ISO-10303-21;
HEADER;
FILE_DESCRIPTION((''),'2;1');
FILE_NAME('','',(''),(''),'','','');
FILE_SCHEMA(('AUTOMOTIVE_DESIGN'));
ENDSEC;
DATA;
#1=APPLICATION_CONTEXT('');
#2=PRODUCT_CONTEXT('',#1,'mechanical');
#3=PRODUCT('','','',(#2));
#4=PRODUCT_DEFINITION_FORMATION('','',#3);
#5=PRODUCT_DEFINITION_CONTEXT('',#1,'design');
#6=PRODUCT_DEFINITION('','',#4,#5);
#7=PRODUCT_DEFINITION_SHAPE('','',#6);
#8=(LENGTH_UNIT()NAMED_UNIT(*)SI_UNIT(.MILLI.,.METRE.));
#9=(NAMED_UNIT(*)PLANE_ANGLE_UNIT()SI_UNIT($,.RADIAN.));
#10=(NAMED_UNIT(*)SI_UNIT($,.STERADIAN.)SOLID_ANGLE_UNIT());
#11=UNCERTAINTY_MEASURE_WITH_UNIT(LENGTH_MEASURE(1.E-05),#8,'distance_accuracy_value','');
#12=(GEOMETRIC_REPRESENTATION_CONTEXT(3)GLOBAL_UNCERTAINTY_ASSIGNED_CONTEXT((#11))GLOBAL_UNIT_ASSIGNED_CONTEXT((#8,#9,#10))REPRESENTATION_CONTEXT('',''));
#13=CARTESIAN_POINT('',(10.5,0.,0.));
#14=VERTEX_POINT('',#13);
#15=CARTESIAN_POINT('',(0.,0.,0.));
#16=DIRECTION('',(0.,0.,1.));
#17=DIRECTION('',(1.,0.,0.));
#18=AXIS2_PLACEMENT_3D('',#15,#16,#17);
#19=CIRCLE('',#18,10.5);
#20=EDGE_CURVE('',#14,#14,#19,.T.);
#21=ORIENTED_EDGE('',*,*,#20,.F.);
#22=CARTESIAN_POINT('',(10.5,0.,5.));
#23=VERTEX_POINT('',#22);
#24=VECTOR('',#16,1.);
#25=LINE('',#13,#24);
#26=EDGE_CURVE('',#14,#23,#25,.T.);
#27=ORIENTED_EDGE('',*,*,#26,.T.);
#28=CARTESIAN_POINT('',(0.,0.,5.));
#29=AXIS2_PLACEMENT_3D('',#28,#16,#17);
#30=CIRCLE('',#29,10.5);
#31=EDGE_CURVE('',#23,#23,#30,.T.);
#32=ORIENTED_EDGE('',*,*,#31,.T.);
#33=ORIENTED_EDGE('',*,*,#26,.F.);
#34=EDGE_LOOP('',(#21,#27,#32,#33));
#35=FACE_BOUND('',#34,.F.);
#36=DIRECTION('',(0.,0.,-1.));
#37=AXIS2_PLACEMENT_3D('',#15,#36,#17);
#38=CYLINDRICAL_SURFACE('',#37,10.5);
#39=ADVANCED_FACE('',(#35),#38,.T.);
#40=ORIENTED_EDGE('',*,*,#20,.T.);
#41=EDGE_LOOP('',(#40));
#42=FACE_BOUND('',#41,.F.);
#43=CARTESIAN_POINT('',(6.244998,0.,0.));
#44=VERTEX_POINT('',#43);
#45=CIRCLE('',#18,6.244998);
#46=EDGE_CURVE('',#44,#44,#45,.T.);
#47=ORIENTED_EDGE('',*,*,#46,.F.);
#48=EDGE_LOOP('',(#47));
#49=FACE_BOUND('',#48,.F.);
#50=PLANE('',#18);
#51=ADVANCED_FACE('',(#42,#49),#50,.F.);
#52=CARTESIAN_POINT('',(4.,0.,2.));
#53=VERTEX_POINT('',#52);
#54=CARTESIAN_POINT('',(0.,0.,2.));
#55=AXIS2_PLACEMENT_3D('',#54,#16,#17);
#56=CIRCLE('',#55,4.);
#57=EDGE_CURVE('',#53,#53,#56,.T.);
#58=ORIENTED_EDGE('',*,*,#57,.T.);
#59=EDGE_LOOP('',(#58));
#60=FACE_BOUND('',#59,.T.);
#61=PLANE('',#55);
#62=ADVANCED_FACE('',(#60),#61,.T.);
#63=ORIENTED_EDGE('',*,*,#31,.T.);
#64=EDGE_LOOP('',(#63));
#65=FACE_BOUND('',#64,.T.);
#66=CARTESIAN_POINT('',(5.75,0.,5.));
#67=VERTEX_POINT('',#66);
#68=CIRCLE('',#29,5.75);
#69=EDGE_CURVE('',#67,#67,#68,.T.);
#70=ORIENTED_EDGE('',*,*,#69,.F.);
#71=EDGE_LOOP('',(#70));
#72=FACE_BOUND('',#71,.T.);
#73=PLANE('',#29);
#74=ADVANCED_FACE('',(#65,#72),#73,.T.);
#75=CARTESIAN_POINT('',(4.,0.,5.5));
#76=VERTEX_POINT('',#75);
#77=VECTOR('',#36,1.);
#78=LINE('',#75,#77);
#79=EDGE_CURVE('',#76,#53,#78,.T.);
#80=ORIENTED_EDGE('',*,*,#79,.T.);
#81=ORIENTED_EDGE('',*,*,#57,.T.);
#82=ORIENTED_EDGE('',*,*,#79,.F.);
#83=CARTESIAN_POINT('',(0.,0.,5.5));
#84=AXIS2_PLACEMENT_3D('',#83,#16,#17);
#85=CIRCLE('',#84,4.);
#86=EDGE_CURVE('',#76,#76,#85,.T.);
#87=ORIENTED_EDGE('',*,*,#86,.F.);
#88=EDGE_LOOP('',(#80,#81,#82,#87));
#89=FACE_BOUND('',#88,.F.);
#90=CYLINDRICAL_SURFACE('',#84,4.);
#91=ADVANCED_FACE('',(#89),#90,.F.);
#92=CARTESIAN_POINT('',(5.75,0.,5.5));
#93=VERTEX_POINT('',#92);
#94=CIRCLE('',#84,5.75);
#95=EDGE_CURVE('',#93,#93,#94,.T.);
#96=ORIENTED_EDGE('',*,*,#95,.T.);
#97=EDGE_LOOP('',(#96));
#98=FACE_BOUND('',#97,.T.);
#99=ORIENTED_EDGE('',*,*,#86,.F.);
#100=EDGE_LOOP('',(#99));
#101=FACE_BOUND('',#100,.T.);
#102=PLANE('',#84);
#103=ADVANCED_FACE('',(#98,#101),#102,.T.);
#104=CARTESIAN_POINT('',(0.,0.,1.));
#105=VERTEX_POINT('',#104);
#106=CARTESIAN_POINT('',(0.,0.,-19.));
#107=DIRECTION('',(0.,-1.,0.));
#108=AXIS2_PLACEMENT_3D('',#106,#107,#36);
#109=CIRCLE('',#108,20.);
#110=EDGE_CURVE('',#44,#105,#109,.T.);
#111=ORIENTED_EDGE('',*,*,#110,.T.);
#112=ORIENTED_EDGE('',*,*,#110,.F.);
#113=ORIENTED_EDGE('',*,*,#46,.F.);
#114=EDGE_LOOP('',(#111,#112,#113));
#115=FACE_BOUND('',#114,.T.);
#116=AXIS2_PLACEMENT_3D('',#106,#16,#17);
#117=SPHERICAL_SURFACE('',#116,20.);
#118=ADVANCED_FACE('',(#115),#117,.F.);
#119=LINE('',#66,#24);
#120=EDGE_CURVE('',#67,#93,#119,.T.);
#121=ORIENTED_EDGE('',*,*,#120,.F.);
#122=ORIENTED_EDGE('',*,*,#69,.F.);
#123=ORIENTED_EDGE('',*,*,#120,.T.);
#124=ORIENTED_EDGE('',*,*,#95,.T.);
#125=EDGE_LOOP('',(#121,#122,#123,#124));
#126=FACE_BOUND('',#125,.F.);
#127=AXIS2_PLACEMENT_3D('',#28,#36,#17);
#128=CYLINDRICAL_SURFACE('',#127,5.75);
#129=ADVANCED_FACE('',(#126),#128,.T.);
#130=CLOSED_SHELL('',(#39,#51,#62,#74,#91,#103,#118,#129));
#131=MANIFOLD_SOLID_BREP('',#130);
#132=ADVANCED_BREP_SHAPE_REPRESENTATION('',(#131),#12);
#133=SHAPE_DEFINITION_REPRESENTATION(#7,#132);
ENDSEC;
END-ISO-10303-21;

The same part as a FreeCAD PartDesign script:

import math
import FreeCAD as App
import Part
import Sketcher

V = App.Vector
Q = App.Units.Quantity

doc = App.newDocument("Part")
body = doc.addObject("PartDesign::Body", "Body")

sketch1 = doc.addObject("Sketcher::SketchObject", "Sketch")
body.addObject(sketch1)
sketch1.AttachmentSupport = (doc.XY_Plane, [""])
sketch1.MapMode = "FlatFace"
sketch1.addGeometry(Part.Circle(V(0, 0, 0), V(0, 0, 1), 10.5), False)
sketch1.addConstraint(Sketcher.Constraint("Coincident", 0, 3, -1, 1))
sketch1.addConstraint(Sketcher.Constraint("Diameter", 0, Q("21 mm")))
pad1 = doc.addObject("PartDesign::Pad", "Pad")
body.addObject(pad1)
pad1.Profile = sketch1
pad1.Length = 5

sketch2 = doc.addObject("Sketcher::SketchObject", "Sketch001")
body.addObject(sketch2)
sketch2.AttachmentSupport = (doc.XY_Plane, [""])
sketch2.MapMode = "FlatFace"
sketch2.AttachmentOffset = App.Placement(V(0, 0, 5), App.Rotation())
sketch2.addGeometry(Part.Circle(V(0, 0, 0), V(0, 0, 1), 5.75), False)
sketch2.addConstraint(Sketcher.Constraint("Coincident", 0, 3, -1, 1))
sketch2.addConstraint(Sketcher.Constraint("Diameter", 0, Q("11.5 mm")))
pad2 = doc.addObject("PartDesign::Pad", "Pad001")
body.addObject(pad2)
pad2.Profile = sketch2
pad2.Length = 0.5

sketch3 = doc.addObject("Sketcher::SketchObject", "Sketch002")
body.addObject(sketch3)
sketch3.AttachmentSupport = (doc.XY_Plane, [""])
sketch3.MapMode = "FlatFace"
sketch3.AttachmentOffset = App.Placement(V(0, 0, 5.5), App.Rotation())
sketch3.addGeometry(Part.Circle(V(0, 0, 0), V(0, 0, 1), 4), False)
sketch3.addConstraint(Sketcher.Constraint("Coincident", 0, 3, -1, 1))
sketch3.addConstraint(Sketcher.Constraint("Diameter", 0, Q("8 mm")))
pocket1 = doc.addObject("PartDesign::Pocket", "Pocket")
body.addObject(pocket1)
pocket1.Profile = sketch3
pocket1.Length = 3.5

sketch4 = doc.addObject("Sketcher::SketchObject", "Sketch003")
body.addObject(sketch4)
sketch4.AttachmentSupport = (doc.XZ_Plane, [""])
sketch4.MapMode = "FlatFace"
sketch4.addGeometry(Part.LineSegment(V(0, 1, 0), V(0, -39, 0)), False)
sketch4.addGeometry(Part.ArcOfCircle(Part.Circle(V(0, -19, 0), V(0, 0, 1), 20), math.radians(-90), math.radians(90)), False)
sketch4.addConstraint(Sketcher.Constraint("Coincident", 0, 1, 1, 2))
sketch4.addConstraint(Sketcher.Constraint("Coincident", 1, 1, 0, 2))
sketch4.addConstraint(Sketcher.Constraint("Vertical", 0))
sketch4.addConstraint(Sketcher.Constraint("PointOnObject", 1, 3, -2))
sketch4.addConstraint(Sketcher.Constraint("PointOnObject", 0, 1, -2))
sketch4.addConstraint(Sketcher.Constraint("Radius", 1, Q("20 mm")))
sketch4.addConstraint(Sketcher.Constraint("DistanceY", 1, 3, -1, 1, Q("19 mm")))
groove = doc.addObject("PartDesign::Groove", "Groove")
body.addObject(groove)
groove.Profile = sketch4
groove.ReferenceAxis = (sketch4, ["V_Axis"])
groove.Angle = 360

doc.recompute()
